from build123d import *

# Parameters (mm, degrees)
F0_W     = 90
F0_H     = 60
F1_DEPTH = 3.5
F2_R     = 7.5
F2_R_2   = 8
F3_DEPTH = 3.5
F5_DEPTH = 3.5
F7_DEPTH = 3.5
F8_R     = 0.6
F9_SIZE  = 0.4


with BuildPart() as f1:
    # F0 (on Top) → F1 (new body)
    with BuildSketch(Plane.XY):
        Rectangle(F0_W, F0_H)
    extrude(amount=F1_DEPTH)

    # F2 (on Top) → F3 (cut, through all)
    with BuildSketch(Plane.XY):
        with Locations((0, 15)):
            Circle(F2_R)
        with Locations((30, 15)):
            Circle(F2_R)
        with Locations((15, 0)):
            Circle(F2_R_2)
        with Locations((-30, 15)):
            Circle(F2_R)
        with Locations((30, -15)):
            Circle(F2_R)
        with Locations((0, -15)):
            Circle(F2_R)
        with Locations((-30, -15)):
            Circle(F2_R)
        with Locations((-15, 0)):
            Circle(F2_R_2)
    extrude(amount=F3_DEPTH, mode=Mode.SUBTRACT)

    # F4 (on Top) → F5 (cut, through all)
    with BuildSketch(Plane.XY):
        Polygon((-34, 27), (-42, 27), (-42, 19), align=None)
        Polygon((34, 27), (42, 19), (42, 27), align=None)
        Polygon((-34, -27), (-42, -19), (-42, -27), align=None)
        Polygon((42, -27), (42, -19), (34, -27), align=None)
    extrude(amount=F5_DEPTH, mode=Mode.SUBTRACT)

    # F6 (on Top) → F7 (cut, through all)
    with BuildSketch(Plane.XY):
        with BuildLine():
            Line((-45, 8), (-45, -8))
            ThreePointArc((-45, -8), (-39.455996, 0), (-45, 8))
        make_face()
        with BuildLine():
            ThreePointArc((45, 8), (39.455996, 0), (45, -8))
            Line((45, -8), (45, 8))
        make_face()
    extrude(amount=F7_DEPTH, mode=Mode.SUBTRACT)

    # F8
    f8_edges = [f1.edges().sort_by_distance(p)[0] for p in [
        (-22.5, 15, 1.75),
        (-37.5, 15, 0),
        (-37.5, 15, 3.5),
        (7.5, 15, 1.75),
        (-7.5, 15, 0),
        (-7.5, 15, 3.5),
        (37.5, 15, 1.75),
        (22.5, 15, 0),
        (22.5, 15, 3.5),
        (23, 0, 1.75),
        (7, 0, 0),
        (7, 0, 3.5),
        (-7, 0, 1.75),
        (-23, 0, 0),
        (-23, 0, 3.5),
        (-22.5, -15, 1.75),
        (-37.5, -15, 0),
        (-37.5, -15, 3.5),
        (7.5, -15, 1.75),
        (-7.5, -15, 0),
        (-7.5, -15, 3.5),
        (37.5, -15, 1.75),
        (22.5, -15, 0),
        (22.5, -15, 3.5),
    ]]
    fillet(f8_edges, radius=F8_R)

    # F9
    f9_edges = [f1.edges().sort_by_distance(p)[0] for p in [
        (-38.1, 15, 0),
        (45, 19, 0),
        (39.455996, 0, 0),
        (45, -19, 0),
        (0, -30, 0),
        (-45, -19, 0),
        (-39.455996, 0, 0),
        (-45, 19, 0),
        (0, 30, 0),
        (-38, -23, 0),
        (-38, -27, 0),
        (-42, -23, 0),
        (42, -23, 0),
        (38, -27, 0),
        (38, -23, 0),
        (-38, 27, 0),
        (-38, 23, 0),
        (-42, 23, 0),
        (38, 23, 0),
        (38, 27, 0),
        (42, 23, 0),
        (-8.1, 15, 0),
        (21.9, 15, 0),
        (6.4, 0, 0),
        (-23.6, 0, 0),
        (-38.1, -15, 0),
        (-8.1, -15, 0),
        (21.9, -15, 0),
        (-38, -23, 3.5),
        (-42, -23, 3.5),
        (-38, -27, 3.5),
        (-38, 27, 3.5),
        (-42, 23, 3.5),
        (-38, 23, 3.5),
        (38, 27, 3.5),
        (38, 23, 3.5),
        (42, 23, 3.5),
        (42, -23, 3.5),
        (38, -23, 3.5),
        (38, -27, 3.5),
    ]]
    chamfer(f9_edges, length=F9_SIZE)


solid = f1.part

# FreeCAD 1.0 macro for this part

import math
import FreeCAD as App
import Part
import Sketcher

V = App.Vector
Q = App.Units.Quantity


def edges_at(feature, points):
    """Names of the edges that pass closest to the given points."""
    edges = feature.Shape.Edges
    near = lambda p: min(range(len(edges)), key=lambda i: edges[i].distToShape(Part.Vertex(*p))[0])
    return sorted({f"Edge{near(p) + 1}" for p in points})

doc = App.newDocument("Part")
params = doc.addObject("Spreadsheet::Sheet", "Params")
for row, (alias, value) in enumerate([
    ("sketch1_width", "90 mm"),
    ("sketch1_height", "60 mm"),
    ("pad1_length", "3.5 mm"),
    ("sketch2_diameter", "15 mm"),
    ("sketch2_diameter2", "16 mm"),
    ("sketch3_width", "8 mm"),
    ("sketch4_height", "16 mm"),
    ("fillet_radius", "0.6 mm"),
    ("chamfer_size", "0.4 mm"),
], start=1):
    params.set(f"A{row}", alias)
    params.set(f"B{row}", "=" + value)
    params.setAlias(f"B{row}", alias)

body = doc.addObject("PartDesign::Body", "Body")

# Sketch on XY plane
sketch1 = body.newObject("Sketcher::SketchObject", "Sketch")
sketch1.AttachmentSupport = (doc.getObject("XY_Plane"), [""])
sketch1.MapMode = "FlatFace"
sketch1.addGeometry(Part.LineSegment(V(-45, 30, 0), V(-45, -30, 0)), False)
sketch1.addGeometry(Part.LineSegment(V(-45, -30, 0), V(45, -30, 0)), False)
sketch1.addGeometry(Part.LineSegment(V(45, -30, 0), V(45, 30, 0)), False)
sketch1.addGeometry(Part.LineSegment(V(45, 30, 0), V(-45, 30, 0)), False)
sketch1.addConstraint(Sketcher.Constraint("Coincident", 0, 2, 1, 1))
sketch1.addConstraint(Sketcher.Constraint("Coincident", 1, 2, 2, 1))
sketch1.addConstraint(Sketcher.Constraint("Coincident", 2, 2, 3, 1))
sketch1.addConstraint(Sketcher.Constraint("Coincident", 3, 2, 0, 1))
sketch1.addConstraint(Sketcher.Constraint("Vertical", 0))
sketch1.addConstraint(Sketcher.Constraint("Horizontal", 1))
sketch1.addConstraint(Sketcher.Constraint("Vertical", 2))
sketch1.addConstraint(Sketcher.Constraint("Horizontal", 3))
sketch1.addConstraint(Sketcher.Constraint("Symmetric", 0, 2, 2, 2, -1, 1))
sketch1.addConstraint(Sketcher.Constraint("DistanceX", 1, 1, 1, 2, Q("90 mm")))
sketch1.addConstraint(Sketcher.Constraint("DistanceY", 0, 2, 0, 1, Q("60 mm")))
sketch1.setExpression("Constraints[9]", "Params.sketch1_width")
sketch1.setExpression("Constraints[10]", "Params.sketch1_height")
pad1 = body.newObject("PartDesign::Pad", "Pad")
pad1.Profile = sketch1
pad1.setExpression("Length", "Params.pad1_length")

# Sketch on XY plane
sketch2 = body.newObject("Sketcher::SketchObject", "Sketch001")
sketch2.AttachmentSupport = (doc.getObject("XY_Plane"), [""])
sketch2.MapMode = "FlatFace"
sketch2.addGeometry(Part.Circle(V(0, 15, 0), V(0, 0, 1), 8), False)
sketch2.addGeometry(Part.Circle(V(30, 15, 0), V(0, 0, 1), 8), False)
sketch2.addGeometry(Part.Circle(V(15, 0, 0), V(0, 0, 1), 8), False)
sketch2.addGeometry(Part.Circle(V(-30, 15, 0), V(0, 0, 1), 8), False)
sketch2.addGeometry(Part.Circle(V(30, -15, 0), V(0, 0, 1), 8), False)
sketch2.addGeometry(Part.Circle(V(0, -15, 0), V(0, 0, 1), 8), False)
sketch2.addGeometry(Part.Circle(V(-30, -15, 0), V(0, 0, 1), 8), False)
sketch2.addGeometry(Part.Circle(V(-15, 0, 0), V(0, 0, 1), 8), False)
sketch2.addConstraint(Sketcher.Constraint("Equal", 0, 1))
sketch2.addConstraint(Sketcher.Constraint("Equal", 1, 3))
sketch2.addConstraint(Sketcher.Constraint("Equal", 3, 4))
sketch2.addConstraint(Sketcher.Constraint("Equal", 4, 5))
sketch2.addConstraint(Sketcher.Constraint("Equal", 5, 6))
sketch2.addConstraint(Sketcher.Constraint("Equal", 2, 7))
sketch2.addConstraint(Sketcher.Constraint("Symmetric", 3, 3, 4, 3, -1, 1))
sketch2.addConstraint(Sketcher.Constraint("Symmetric", 0, 3, 5, 3, -1, 1))
sketch2.addConstraint(Sketcher.Constraint("Symmetric", 1, 3, 6, 3, -1, 1))
sketch2.addConstraint(Sketcher.Constraint("Symmetric", 2, 3, 7, 3, -1, 1))
sketch2.addConstraint(Sketcher.Constraint("Symmetric", 1, 3, 3, 3, -2))
sketch2.addConstraint(Sketcher.Constraint("PointOnObject", 0, 3, -2))
sketch2.addConstraint(Sketcher.Constraint("PointOnObject", 2, 3, -1))
sketch2.addConstraint(Sketcher.Constraint("Horizontal", 0, 3, 1, 3))
sketch2.addConstraint(Sketcher.Constraint("Diameter", 0, Q("15 mm")))
sketch2.addConstraint(Sketcher.Constraint("Diameter", 2, Q("16 mm")))
sketch2.addConstraint(Sketcher.Constraint("DistanceY", -1, 1, 0, 3, Q("15 mm")))
sketch2.addConstraint(Sketcher.Constraint("DistanceX", -1, 1, 1, 3, Q("30 mm")))
sketch2.addConstraint(Sketcher.Constraint("DistanceX", -1, 1, 2, 3, Q("15 mm")))
sketch2.setExpression("Constraints[14]", "Params.sketch2_diameter")
sketch2.setExpression("Constraints[15]", "Params.sketch2_diameter2")
pocket1 = body.newObject("PartDesign::Pocket", "Pocket")
pocket1.Profile = sketch2
pocket1.Type = "ThroughAll"
pocket1.Reversed = True

# Sketch on XY plane
sketch3 = body.newObject("Sketcher::SketchObject", "Sketch002")
sketch3.AttachmentSupport = (doc.getObject("XY_Plane"), [""])
sketch3.MapMode = "FlatFace"
sketch3.addGeometry(Part.LineSegment(V(-34, 27, 0), V(-42, 27, 0)), False)
sketch3.addGeometry(Part.LineSegment(V(-42, 27, 0), V(-42, 19, 0)), False)
sketch3.addGeometry(Part.LineSegment(V(-42, 19, 0), V(-34, 27, 0)), False)
sketch3.addGeometry(Part.LineSegment(V(34, 27, 0), V(42, 19, 0)), False)
sketch3.addGeometry(Part.LineSegment(V(42, 19, 0), V(42, 27, 0)), False)
sketch3.addGeometry(Part.LineSegment(V(42, 27, 0), V(34, 27, 0)), False)
sketch3.addGeometry(Part.LineSegment(V(-34, -27, 0), V(-42, -19, 0)), False)
sketch3.addGeometry(Part.LineSegment(V(-42, -19, 0), V(-42, -27, 0)), False)
sketch3.addGeometry(Part.LineSegment(V(-42, -27, 0), V(-34, -27, 0)), False)
sketch3.addGeometry(Part.LineSegment(V(42, -27, 0), V(42, -19, 0)), False)
sketch3.addGeometry(Part.LineSegment(V(42, -19, 0), V(34, -27, 0)), False)
sketch3.addGeometry(Part.LineSegment(V(34, -27, 0), V(42, -27, 0)), False)
sketch3.addConstraint(Sketcher.Constraint("Coincident", 0, 2, 1, 1))
sketch3.addConstraint(Sketcher.Constraint("Coincident", 1, 2, 2, 1))
sketch3.addConstraint(Sketcher.Constraint("Coincident", 2, 2, 0, 1))
sketch3.addConstraint(Sketcher.Constraint("Coincident", 3, 2, 4, 1))
sketch3.addConstraint(Sketcher.Constraint("Coincident", 4, 2, 5, 1))
sketch3.addConstraint(Sketcher.Constraint("Coincident", 5, 2, 3, 1))
sketch3.addConstraint(Sketcher.Constraint("Coincident", 6, 2, 7, 1))
sketch3.addConstraint(Sketcher.Constraint("Coincident", 7, 2, 8, 1))
sketch3.addConstraint(Sketcher.Constraint("Coincident", 8, 2, 6, 1))
sketch3.addConstraint(Sketcher.Constraint("Coincident", 9, 2, 10, 1))
sketch3.addConstraint(Sketcher.Constraint("Coincident", 10, 2, 11, 1))
sketch3.addConstraint(Sketcher.Constraint("Coincident", 11, 2, 9, 1))
sketch3.addConstraint(Sketcher.Constraint("Horizontal", 0))
sketch3.addConstraint(Sketcher.Constraint("Vertical", 1))
sketch3.addConstraint(Sketcher.Constraint("Vertical", 4))
sketch3.addConstraint(Sketcher.Constraint("Horizontal", 5))
sketch3.addConstraint(Sketcher.Constraint("Vertical", 7))
sketch3.addConstraint(Sketcher.Constraint("Horizontal", 8))
sketch3.addConstraint(Sketcher.Constraint("Vertical", 9))
sketch3.addConstraint(Sketcher.Constraint("Horizontal", 11))
sketch3.addConstraint(Sketcher.Constraint("Symmetric", 3, 2, 6, 2, -1, 1))
sketch3.addConstraint(Sketcher.Constraint("Symmetric", 5, 2, 8, 2, -1, 1))
sketch3.addConstraint(Sketcher.Constraint("Symmetric", 1, 2, 9, 2, -1, 1))
sketch3.addConstraint(Sketcher.Constraint("Symmetric", 2, 2, 10, 2, -1, 1))
sketch3.addConstraint(Sketcher.Constraint("Symmetric", 1, 2, 3, 2, -2))
sketch3.addConstraint(Sketcher.Constraint("Symmetric", 2, 2, 5, 2, -2))
sketch3.addConstraint(Sketcher.Constraint("Perpendicular", 2, 3))
sketch3.addConstraint(Sketcher.Constraint("DistanceX", 0, 2, 0, 1, Q("8 mm")))
sketch3.addConstraint(Sketcher.Constraint("DistanceX", 0, 2, -1, 1, Q("42 mm")))
sketch3.addConstraint(Sketcher.Constraint("DistanceY", -1, 1, 0, 2, Q("27 mm")))
sketch3.setExpression("Constraints[27]", "Params.sketch3_width")
pocket2 = body.newObject("PartDesign::Pocket", "Pocket001")
pocket2.Profile = sketch3
pocket2.Type = "ThroughAll"
pocket2.Reversed = True

# Sketch on XY plane
sketch4 = body.newObject("Sketcher::SketchObject", "Sketch003")
sketch4.AttachmentSupport = (doc.getObject("XY_Plane"), [""])
sketch4.MapMode = "FlatFace"
sketch4.addGeometry(Part.LineSegment(V(-45, 8, 0), V(-45, -8, 0)), False)
sketch4.addGeometry(Part.ArcOfCircle(Part.Circle(V(-48, 0, 0), V(0, 0, 1), 9), math.radians(-69), math.radians(69)), False)
sketch4.addGeometry(Part.ArcOfCircle(Part.Circle(V(48, 0, 0), V(0, 0, 1), 9), math.radians(111), math.radians(249)), False)
sketch4.addGeometry(Part.LineSegment(V(45, -8, 0), V(45, 8, 0)), False)
sketch4.addConstraint(Sketcher.Constraint("Coincident", 0, 1, 1, 2))
sketch4.addConstraint(Sketcher.Constraint("Coincident", 1, 1, 0, 2))
sketch4.addConstraint(Sketcher.Constraint("Coincident", 2, 1, 3, 2))
sketch4.addConstraint(Sketcher.Constraint("Coincident", 3, 1, 2, 2))
sketch4.addConstraint(Sketcher.Constraint("Vertical", 0))
sketch4.addConstraint(Sketcher.Constraint("Vertical", 3))
sketch4.addConstraint(Sketcher.Constraint("Equal", 1, 2))
sketch4.addConstraint(Sketcher.Constraint("Symmetric", 1, 3, 2, 3, -1, 1))
sketch4.addConstraint(Sketcher.Constraint("Symmetric", 0, 1, 2, 1, -2))
sketch4.addConstraint(Sketcher.Constraint("DistanceY", 0, 2, 0, 1, Q("16 mm")))
sketch4.addConstraint(Sketcher.Constraint("DistanceX", 1, 3, -1, 1, Q("48 mm")))
sketch4.addConstraint(Sketcher.Constraint("DistanceX", 0, 1, -1, 1, Q("45 mm")))
sketch4.setExpression("Constraints[9]", "Params.sketch4_height")
pocket3 = body.newObject("PartDesign::Pocket", "Pocket002")
pocket3.Profile = sketch4
pocket3.Type = "ThroughAll"
pocket3.Reversed = True
doc.recompute()

fillet = body.newObject("PartDesign::Fillet", "Fillet")
fillet.Base = (pocket3, edges_at(pocket3, [
    (-22.5, 15, 1.75),
    (-37.5, 15, 0),
    (-37.5, 15, 3.5),
    (7.5, 15, 1.75),
    (-7.5, 15, 0),
    (-7.5, 15, 3.5),
    (37.5, 15, 1.75),
    (22.5, 15, 0),
    (22.5, 15, 3.5),
    (23, 0, 1.75),
    (7, 0, 0),
    (7, 0, 3.5),
    (-7, 0, 1.75),
    (-23, 0, 0),
    (-23, 0, 3.5),
    (-22.5, -15, 1.75),
    (-37.5, -15, 0),
    (-37.5, -15, 3.5),
    (7.5, -15, 1.75),
    (-7.5, -15, 0),
    (-7.5, -15, 3.5),
    (37.5, -15, 1.75),
    (22.5, -15, 0),
    (22.5, -15, 3.5),
]))
fillet.setExpression("Radius", "Params.fillet_radius")
doc.recompute()

chamfer = body.newObject("PartDesign::Chamfer", "Chamfer")
chamfer.Base = (fillet, edges_at(fillet, [
    (-38.1, 15, 0),
    (45, 19, 0),
    (39.456, 0, 0),
    (45, -19, 0),
    (0, -30, 0),
    (-45, -19, 0),
    (-39.456, 0, 0),
    (-45, 19, 0),
    (0, 30, 0),
    (-38, -23, 0),
    (-38, -27, 0),
    (-42, -23, 0),
    (42, -23, 0),
    (38, -27, 0),
    (38, -23, 0),
    (-38, 27, 0),
    (-38, 23, 0),
    (-42, 23, 0),
    (38, 23, 0),
    (38, 27, 0),
    (42, 23, 0),
    (-8.1, 15, 0),
    (21.9, 15, 0),
    (6.4, 0, 0),
    (-23.6, 0, 0),
    (-38.1, -15, 0),
    (-8.1, -15, 0),
    (21.9, -15, 0),
    (-38, -23, 3.5),
    (-42, -23, 3.5),
    (-38, -27, 3.5),
    (-38, 27, 3.5),
    (-42, 23, 3.5),
    (-38, 23, 3.5),
    (38, 27, 3.5),
    (38, 23, 3.5),
    (42, 23, 3.5),
    (42, -23, 3.5),
    (38, -23, 3.5),
    (38, -27, 3.5),
]))
chamfer.setExpression("Size", "Params.chamfer_size")

doc.recompute()
